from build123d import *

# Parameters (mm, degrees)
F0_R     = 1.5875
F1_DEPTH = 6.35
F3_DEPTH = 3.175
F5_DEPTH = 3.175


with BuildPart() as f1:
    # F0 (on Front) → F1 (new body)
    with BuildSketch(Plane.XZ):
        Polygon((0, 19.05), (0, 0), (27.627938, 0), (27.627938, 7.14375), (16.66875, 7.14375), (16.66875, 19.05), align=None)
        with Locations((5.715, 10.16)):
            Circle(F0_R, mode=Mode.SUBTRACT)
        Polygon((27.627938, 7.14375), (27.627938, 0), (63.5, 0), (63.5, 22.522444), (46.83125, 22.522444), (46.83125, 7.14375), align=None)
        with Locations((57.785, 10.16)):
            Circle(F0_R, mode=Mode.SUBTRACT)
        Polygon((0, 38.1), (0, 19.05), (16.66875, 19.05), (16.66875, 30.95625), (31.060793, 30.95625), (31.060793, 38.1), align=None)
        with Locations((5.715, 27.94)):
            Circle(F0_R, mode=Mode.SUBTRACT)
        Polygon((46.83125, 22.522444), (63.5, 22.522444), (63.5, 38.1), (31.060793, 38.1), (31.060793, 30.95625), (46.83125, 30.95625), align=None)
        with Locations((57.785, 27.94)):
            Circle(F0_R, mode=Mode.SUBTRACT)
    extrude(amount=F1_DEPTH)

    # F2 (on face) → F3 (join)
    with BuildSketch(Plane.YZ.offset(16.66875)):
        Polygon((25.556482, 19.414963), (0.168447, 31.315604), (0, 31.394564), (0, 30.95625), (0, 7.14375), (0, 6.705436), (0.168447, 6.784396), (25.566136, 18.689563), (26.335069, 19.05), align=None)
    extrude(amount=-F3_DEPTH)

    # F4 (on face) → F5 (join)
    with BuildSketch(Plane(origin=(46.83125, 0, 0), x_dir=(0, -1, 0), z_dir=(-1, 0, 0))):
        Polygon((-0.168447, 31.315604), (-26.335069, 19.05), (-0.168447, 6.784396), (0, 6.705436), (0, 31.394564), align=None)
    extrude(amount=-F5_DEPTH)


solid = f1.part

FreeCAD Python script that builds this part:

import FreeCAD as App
import Part
import Sketcher
Q = App.Units.Quantity


def add_polygon(sketch, points):
    """Adds a closed chain of lines whose ends are joined by coincident constraints."""
    first, n = sketch.GeometryCount, len(points)
    for a, b in zip(points, points[1:] + points[:1]):
        sketch.addGeometry(Part.LineSegment(App.Vector(*a, 0), App.Vector(*b, 0)), False)
    for i in range(n):
        sketch.addConstraint(Sketcher.Constraint("Coincident", first + i, 2, first + (i + 1) % n, 1))

doc = App.newDocument("Part")
body = doc.addObject("PartDesign::Body", "Body")

# Sketch on XZ plane
sketch1 = body.newObject("Sketcher::SketchObject", "Sketch")
sketch1.AttachmentSupport = (doc.getObject("XZ_Plane"), [""])
sketch1.MapMode = "FlatFace"
add_polygon(sketch1, [(0, 0), (63.5, 0), (63.5, 38.1), (0, 38.1)])  # lines 0-3
sketch1.addGeometry(Part.Circle(App.Vector(5.7, 10.2, 0), App.Vector(0, 0, 1), 1.6), False)  # 4
sketch1.addGeometry(Part.Circle(App.Vector(57.8, 10.2, 0), App.Vector(0, 0, 1), 1.6), False)  # 5
sketch1.addGeometry(Part.Circle(App.Vector(5.7, 27.9, 0), App.Vector(0, 0, 1), 1.6), False)  # 6
add_polygon(sketch1, [(46.8, 7.1), (16.7, 7.1), (16.7, 31), (46.8, 31)])  # lines 7-10
sketch1.addGeometry(Part.Circle(App.Vector(57.8, 27.9, 0), App.Vector(0, 0, 1), 1.6), False)  # 11
sketch1.addConstraint([
    Sketcher.Constraint("Horizontal", 0),
    Sketcher.Constraint("Vertical", 1),
    Sketcher.Constraint("Horizontal", 2),
    Sketcher.Constraint("Vertical", 3),
    Sketcher.Constraint("Horizontal", 7),
    Sketcher.Constraint("Vertical", 8),
    Sketcher.Constraint("Horizontal", 9),
    Sketcher.Constraint("Vertical", 10),
    Sketcher.Constraint("Coincident", 3, 2, -1, 1),
    Sketcher.Constraint("Equal", 4, 5),
    Sketcher.Constraint("Equal", 5, 6),
    Sketcher.Constraint("Equal", 6, 11),
    Sketcher.Constraint("Horizontal", 4, 3, 5, 3),
    Sketcher.Constraint("Horizontal", 6, 3, 11, 3),
    Sketcher.Constraint("Vertical", 4, 3, 6, 3),
    Sketcher.Constraint("Vertical", 5, 3, 11, 3),
    Sketcher.Constraint("Diameter", 4, Q("0.125 in")),
    Sketcher.Constraint("DistanceX", 0, 1, 0, 2, Q("2.5 in")),
    Sketcher.Constraint("DistanceY", 1, 1, 1, 2, Q("1.5 in")),
    Sketcher.Constraint("DistanceY", -1, 1, 4, 3, Q("0.4 in")),
    Sketcher.Constraint("DistanceY", -1, 1, 6, 3, Q("1.1 in")),
    Sketcher.Constraint("DistanceX", 7, 2, 7, 1, Q("1.1875 in")),
    Sketcher.Constraint("DistanceY", 8, 1, 8, 2, Q("0.9375 in")),
    Sketcher.Constraint("DistanceX", 4, 3, 5, 3, Q("2.05 in")),
    Sketcher.Constraint("DistanceX", -1, 1, 4, 3, Q("0.225 in")),
    Sketcher.Constraint("DistanceX", -1, 1, 7, 2, Q("0.65625 in")),
    Sketcher.Constraint("DistanceY", -1, 1, 7, 2, Q("0.28125 in")),
])
pad1 = body.newObject("PartDesign::Pad", "Pad")
pad1.Profile = sketch1
pad1.Length = Q("0.25 in")

# Sketch on YZ plane
sketch2 = body.newObject("Sketcher::SketchObject", "Sketch001")
sketch2.AttachmentSupport = (doc.getObject("YZ_Plane"), [""])
sketch2.MapMode = "FlatFace"
sketch2.AttachmentOffset = App.Placement(App.Vector(0, 0, 0.65625 * 25.4), App.Rotation())
add_polygon(sketch2, [(25.556482, 19.414963), (0.168447, 31.315604), (0, 31.394564), (0, 6.705436), (0.168447, 6.784396), (25.566136, 18.689563), (26.335069, 19.05)])  # lines 0-6
sketch2.addConstraint([
    Sketcher.Constraint("Vertical", 2),
    Sketcher.Constraint("PointOnObject", 1, 2, -2),
    Sketcher.Constraint("DistanceY", -1, 1, 5, 2, Q("0.75 in")),
    Sketcher.Constraint("DistanceY", 2, 2, 2, 1, 24.689128),
    Sketcher.Constraint("DistanceY", 4, 2, 1, 2, 12.705001),
    Sketcher.Constraint("DistanceY", 4, 2, 6, 2, 0.7254),
    Sketcher.Constraint("Distance", 0, 28.038858),
    Sketcher.Constraint("Distance", 4, 28.049521),
    Sketcher.Constraint("Distance", 5, 0.849219),
    Sketcher.Constraint("Distance", 6, 0.859881),
    Sketcher.Constraint("DistanceX", -1, 1, 5, 2, 26.335069),
    Sketcher.Constraint("DistanceX", -1, 1, 6, 2, 25.556482),
    Sketcher.Constraint("DistanceY", 0, 2, 1, 2, 0.07896),
    Sketcher.Constraint("DistanceY", 2, 2, 3, 2, 0.07896),
])
pad2 = body.newObject("PartDesign::Pad", "Pad001")
pad2.Profile = sketch2
pad2.Length = Q("0.125 in")
pad2.Reversed = True

# Sketch on YZ plane
sketch3 = body.newObject("Sketcher::SketchObject", "Sketch002")
sketch3.AttachmentSupport = (doc.getObject("YZ_Plane"), [""])
sketch3.MapMode = "FlatFace"
sketch3.AttachmentOffset = App.Placement(App.Vector(0, 0, 1.84375 * 25.4), App.Rotation())
add_polygon(sketch3, [(0.17, 31.32), (26.34, 19.05), (0.17, 6.78), (0, 6.71), (0, 31.39)])  # lines 0-4
sketch3.addConstraint([
    Sketcher.Constraint("Vertical", 3),
    Sketcher.Constraint("PointOnObject", 2, 2, -2),
    Sketcher.Constraint("Vertical", 1, 2, 4, 2),
    Sketcher.Constraint("Equal", 0, 1),
    Sketcher.Constraint("Equal", 2, 4),
    Sketcher.Constraint("DistanceY", -1, 1, 0, 2, Q("0.75 in")),
    Sketcher.Constraint("DistanceY", 3, 1, 3, 2, 24.689128),
    Sketcher.Constraint("Distance", 0, 28.89874),
    Sketcher.Constraint("DistanceX", -1, 1, 0, 2, 26.335069),
    Sketcher.Constraint("DistanceX", 1, 2, 0, 2, 26.166622),
])
pad3 = body.newObject("PartDesign::Pad", "Pad002")
pad3.Profile = sketch3
pad3.Length = Q("0.125 in")

doc.recompute()
